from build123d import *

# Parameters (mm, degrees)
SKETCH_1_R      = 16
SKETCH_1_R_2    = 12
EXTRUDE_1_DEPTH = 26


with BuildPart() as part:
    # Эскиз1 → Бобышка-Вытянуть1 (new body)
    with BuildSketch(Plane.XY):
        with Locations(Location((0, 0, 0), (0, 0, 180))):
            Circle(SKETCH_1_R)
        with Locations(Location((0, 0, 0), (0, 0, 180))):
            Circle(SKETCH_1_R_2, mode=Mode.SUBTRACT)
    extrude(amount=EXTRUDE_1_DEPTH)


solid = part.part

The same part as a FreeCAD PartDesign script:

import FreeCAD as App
import Part
import Sketcher
from FreeCAD import Vector

doc = App.newDocument("Part")
params = doc.addObject("Spreadsheet::Sheet", "Params")
for row, (alias, value) in enumerate([
    ("sketch1_diameter", "32 mm"),
    ("sketch1_diameter2", "24 mm"),
    ("pad1_length", "26 mm"),
], start=1):
    params.set(f"A{row}", alias)
    params.set(f"B{row}", "=" + value)
    params.setAlias(f"B{row}", alias)

body = doc.addObject("PartDesign::Body", "Body")

sketch1 = body.newObject("Sketcher::SketchObject", "Sketch")
sketch1.AttachmentSupport = (doc.getObject("XY_Plane"), [""])
sketch1.MapMode = "FlatFace"
sketch1.addGeometry([
    Part.Circle(Vector(0, 0, 0), Vector(0, 0, 1), 16),
    Part.Circle(Vector(0, 0, 0), Vector(0, 0, 1), 12),
], False)
sketch1.addConstraint([
    Sketcher.Constraint("Coincident", 0, 3, -1, 1),
    Sketcher.Constraint("Coincident", 1, 3, -1, 1),
    Sketcher.Constraint("Diameter", 0, 32.0),
    Sketcher.Constraint("Diameter", 1, 24.0),
])
sketch1.setExpression("Constraints[2]", "Params.sketch1_diameter")
sketch1.setExpression("Constraints[3]", "Params.sketch1_diameter2")
pad1 = body.newObject("PartDesign::Pad", "Pad")
pad1.Profile = sketch1
pad1.setExpression("Length", "Params.pad1_length")

doc.recompute()
